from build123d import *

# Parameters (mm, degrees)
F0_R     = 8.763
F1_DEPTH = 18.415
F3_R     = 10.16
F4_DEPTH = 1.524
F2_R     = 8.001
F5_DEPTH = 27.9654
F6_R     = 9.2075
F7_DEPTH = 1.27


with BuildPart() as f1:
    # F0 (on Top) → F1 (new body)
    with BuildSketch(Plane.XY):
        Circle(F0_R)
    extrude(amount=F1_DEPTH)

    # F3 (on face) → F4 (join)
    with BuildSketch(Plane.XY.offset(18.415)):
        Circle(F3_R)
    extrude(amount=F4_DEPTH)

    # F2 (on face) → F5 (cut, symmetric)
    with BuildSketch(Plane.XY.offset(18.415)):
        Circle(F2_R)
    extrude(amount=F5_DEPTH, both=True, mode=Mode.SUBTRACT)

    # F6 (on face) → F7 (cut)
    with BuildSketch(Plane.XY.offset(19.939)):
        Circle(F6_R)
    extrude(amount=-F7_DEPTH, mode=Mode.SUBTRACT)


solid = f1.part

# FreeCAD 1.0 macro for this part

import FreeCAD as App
import Part
import Sketcher

V = App.Vector
Q = App.Units.Quantity

doc = App.newDocument("Part")
body = doc.addObject("PartDesign::Body", "Body")

sketch1 = body.newObject("Sketcher::SketchObject", "Sketch")
sketch1.AttachmentSupport = (doc.getObject("XY_Plane"), [""])
sketch1.MapMode = "FlatFace"
sketch1.addGeometry(Part.Circle(V(0, 0, 0), V(0, 0, 1), 8.763), False)
sketch1.addConstraint(Sketcher.Constraint("Coincident", 0, 3, -1, 1))
sketch1.addConstraint(Sketcher.Constraint("Diameter", 0, Q("0.69 in")))
pad1 = body.newObject("PartDesign::Pad", "Pad")
pad1.Profile = sketch1
pad1.Length = Q("0.725 in")

sketch2 = body.newObject("Sketcher::SketchObject", "Sketch001")
sketch2.AttachmentSupport = (doc.getObject("XY_Plane"), [""])
sketch2.MapMode = "FlatFace"
sketch2.AttachmentOffset = App.Placement(V(0, 0, 0.725 * 25.4), App.Rotation())
sketch2.addGeometry(Part.Circle(V(0, 0, 0), V(0, 0, 1), 10.16), False)
sketch2.addConstraint(Sketcher.Constraint("Coincident", 0, 3, -1, 1))
sketch2.addConstraint(Sketcher.Constraint("Diameter", 0, Q("0.8 in")))
pad2 = body.newObject("PartDesign::Pad", "Pad001")
pad2.Profile = sketch2
pad2.Length = Q("0.06 in")

sketch3 = body.newObject("Sketcher::SketchObject", "Sketch002")
sketch3.AttachmentSupport = (doc.getObject("XY_Plane"), [""])
sketch3.MapMode = "FlatFace"
sketch3.AttachmentOffset = App.Placement(V(0, 0, 0.725 * 25.4), App.Rotation())
sketch3.addGeometry(Part.Circle(V(0, 0, 0), V(0, 0, 1), 8.001), False)
sketch3.addConstraint(Sketcher.Constraint("Coincident", 0, 3, -1, 1))
sketch3.addConstraint(Sketcher.Constraint("Diameter", 0, Q("0.63 in")))
pocket1 = body.newObject("PartDesign::Pocket", "Pocket")
pocket1.Profile = sketch3
pocket1.Length = Q("2.202 in")
pocket1.Midplane = True

sketch4 = body.newObject("Sketcher::SketchObject", "Sketch003")
sketch4.AttachmentSupport = (doc.getObject("XY_Plane"), [""])
sketch4.MapMode = "FlatFace"
sketch4.AttachmentOffset = App.Placement(V(0, 0, 0.785 * 25.4), App.Rotation())
sketch4.addGeometry(Part.Circle(V(0, 0, 0), V(0, 0, 1), 9.2075), False)
sketch4.addConstraint(Sketcher.Constraint("Coincident", 0, 3, -1, 1))
sketch4.addConstraint(Sketcher.Constraint("Diameter", 0, Q("0.725 in")))
pocket2 = body.newObject("PartDesign::Pocket", "Pocket001")
pocket2.Profile = sketch4
pocket2.Length = Q("0.05 in")

doc.recompute()
